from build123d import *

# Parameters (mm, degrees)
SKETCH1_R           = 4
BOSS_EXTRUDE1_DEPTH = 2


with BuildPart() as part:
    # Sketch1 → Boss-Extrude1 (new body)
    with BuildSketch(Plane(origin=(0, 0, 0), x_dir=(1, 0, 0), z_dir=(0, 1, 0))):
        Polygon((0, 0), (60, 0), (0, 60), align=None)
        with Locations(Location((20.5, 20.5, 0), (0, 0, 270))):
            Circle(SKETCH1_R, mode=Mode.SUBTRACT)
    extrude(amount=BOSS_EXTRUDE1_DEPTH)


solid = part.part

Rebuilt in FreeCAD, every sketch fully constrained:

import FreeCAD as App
import Part
import Sketcher

V = App.Vector

doc = App.newDocument("Part")
body = doc.addObject("PartDesign::Body", "Body")

# Sketch on XZ plane
sketch1 = body.newObject("Sketcher::SketchObject", "Sketch")
sketch1.AttachmentSupport = (doc.getObject("XZ_Plane"), [""])
sketch1.MapMode = "FlatFace"
sketch1.addGeometry([
    Part.LineSegment(V(0, 0, 0), V(60, 0, 0)),
    Part.LineSegment(V(60, 0, 0), V(0, -60, 0)),
    Part.LineSegment(V(0, -60, 0), V(0, 0, 0)),
    Part.Circle(V(20.5, -20.5, 0), V(0, 0, 1), 4),
], False)
sketch1.addConstraint([
    Sketcher.Constraint("Coincident", 0, 2, 1, 1),
    Sketcher.Constraint("Coincident", 1, 2, 2, 1),
    Sketcher.Constraint("Coincident", 2, 2, 0, 1),
    Sketcher.Constraint("Horizontal", 0),
    Sketcher.Constraint("Vertical", 2),
    Sketcher.Constraint("Coincident", 2, 2, -1, 1),
    Sketcher.Constraint("Equal", 0, 2),
    Sketcher.Constraint("Diameter", 3, 8.0),
    Sketcher.Constraint("DistanceX", 0, 1, 0, 2, 60.0),
    Sketcher.Constraint("DistanceX", -1, 1, 3, 3, 20.5),
    Sketcher.Constraint("DistanceY", 3, 3, -1, 1, 20.5),
])
pad1 = body.newObject("PartDesign::Pad", "Pad")
pad1.Profile = sketch1
pad1.Length = 2
pad1.Reversed = True

doc.recompute()
